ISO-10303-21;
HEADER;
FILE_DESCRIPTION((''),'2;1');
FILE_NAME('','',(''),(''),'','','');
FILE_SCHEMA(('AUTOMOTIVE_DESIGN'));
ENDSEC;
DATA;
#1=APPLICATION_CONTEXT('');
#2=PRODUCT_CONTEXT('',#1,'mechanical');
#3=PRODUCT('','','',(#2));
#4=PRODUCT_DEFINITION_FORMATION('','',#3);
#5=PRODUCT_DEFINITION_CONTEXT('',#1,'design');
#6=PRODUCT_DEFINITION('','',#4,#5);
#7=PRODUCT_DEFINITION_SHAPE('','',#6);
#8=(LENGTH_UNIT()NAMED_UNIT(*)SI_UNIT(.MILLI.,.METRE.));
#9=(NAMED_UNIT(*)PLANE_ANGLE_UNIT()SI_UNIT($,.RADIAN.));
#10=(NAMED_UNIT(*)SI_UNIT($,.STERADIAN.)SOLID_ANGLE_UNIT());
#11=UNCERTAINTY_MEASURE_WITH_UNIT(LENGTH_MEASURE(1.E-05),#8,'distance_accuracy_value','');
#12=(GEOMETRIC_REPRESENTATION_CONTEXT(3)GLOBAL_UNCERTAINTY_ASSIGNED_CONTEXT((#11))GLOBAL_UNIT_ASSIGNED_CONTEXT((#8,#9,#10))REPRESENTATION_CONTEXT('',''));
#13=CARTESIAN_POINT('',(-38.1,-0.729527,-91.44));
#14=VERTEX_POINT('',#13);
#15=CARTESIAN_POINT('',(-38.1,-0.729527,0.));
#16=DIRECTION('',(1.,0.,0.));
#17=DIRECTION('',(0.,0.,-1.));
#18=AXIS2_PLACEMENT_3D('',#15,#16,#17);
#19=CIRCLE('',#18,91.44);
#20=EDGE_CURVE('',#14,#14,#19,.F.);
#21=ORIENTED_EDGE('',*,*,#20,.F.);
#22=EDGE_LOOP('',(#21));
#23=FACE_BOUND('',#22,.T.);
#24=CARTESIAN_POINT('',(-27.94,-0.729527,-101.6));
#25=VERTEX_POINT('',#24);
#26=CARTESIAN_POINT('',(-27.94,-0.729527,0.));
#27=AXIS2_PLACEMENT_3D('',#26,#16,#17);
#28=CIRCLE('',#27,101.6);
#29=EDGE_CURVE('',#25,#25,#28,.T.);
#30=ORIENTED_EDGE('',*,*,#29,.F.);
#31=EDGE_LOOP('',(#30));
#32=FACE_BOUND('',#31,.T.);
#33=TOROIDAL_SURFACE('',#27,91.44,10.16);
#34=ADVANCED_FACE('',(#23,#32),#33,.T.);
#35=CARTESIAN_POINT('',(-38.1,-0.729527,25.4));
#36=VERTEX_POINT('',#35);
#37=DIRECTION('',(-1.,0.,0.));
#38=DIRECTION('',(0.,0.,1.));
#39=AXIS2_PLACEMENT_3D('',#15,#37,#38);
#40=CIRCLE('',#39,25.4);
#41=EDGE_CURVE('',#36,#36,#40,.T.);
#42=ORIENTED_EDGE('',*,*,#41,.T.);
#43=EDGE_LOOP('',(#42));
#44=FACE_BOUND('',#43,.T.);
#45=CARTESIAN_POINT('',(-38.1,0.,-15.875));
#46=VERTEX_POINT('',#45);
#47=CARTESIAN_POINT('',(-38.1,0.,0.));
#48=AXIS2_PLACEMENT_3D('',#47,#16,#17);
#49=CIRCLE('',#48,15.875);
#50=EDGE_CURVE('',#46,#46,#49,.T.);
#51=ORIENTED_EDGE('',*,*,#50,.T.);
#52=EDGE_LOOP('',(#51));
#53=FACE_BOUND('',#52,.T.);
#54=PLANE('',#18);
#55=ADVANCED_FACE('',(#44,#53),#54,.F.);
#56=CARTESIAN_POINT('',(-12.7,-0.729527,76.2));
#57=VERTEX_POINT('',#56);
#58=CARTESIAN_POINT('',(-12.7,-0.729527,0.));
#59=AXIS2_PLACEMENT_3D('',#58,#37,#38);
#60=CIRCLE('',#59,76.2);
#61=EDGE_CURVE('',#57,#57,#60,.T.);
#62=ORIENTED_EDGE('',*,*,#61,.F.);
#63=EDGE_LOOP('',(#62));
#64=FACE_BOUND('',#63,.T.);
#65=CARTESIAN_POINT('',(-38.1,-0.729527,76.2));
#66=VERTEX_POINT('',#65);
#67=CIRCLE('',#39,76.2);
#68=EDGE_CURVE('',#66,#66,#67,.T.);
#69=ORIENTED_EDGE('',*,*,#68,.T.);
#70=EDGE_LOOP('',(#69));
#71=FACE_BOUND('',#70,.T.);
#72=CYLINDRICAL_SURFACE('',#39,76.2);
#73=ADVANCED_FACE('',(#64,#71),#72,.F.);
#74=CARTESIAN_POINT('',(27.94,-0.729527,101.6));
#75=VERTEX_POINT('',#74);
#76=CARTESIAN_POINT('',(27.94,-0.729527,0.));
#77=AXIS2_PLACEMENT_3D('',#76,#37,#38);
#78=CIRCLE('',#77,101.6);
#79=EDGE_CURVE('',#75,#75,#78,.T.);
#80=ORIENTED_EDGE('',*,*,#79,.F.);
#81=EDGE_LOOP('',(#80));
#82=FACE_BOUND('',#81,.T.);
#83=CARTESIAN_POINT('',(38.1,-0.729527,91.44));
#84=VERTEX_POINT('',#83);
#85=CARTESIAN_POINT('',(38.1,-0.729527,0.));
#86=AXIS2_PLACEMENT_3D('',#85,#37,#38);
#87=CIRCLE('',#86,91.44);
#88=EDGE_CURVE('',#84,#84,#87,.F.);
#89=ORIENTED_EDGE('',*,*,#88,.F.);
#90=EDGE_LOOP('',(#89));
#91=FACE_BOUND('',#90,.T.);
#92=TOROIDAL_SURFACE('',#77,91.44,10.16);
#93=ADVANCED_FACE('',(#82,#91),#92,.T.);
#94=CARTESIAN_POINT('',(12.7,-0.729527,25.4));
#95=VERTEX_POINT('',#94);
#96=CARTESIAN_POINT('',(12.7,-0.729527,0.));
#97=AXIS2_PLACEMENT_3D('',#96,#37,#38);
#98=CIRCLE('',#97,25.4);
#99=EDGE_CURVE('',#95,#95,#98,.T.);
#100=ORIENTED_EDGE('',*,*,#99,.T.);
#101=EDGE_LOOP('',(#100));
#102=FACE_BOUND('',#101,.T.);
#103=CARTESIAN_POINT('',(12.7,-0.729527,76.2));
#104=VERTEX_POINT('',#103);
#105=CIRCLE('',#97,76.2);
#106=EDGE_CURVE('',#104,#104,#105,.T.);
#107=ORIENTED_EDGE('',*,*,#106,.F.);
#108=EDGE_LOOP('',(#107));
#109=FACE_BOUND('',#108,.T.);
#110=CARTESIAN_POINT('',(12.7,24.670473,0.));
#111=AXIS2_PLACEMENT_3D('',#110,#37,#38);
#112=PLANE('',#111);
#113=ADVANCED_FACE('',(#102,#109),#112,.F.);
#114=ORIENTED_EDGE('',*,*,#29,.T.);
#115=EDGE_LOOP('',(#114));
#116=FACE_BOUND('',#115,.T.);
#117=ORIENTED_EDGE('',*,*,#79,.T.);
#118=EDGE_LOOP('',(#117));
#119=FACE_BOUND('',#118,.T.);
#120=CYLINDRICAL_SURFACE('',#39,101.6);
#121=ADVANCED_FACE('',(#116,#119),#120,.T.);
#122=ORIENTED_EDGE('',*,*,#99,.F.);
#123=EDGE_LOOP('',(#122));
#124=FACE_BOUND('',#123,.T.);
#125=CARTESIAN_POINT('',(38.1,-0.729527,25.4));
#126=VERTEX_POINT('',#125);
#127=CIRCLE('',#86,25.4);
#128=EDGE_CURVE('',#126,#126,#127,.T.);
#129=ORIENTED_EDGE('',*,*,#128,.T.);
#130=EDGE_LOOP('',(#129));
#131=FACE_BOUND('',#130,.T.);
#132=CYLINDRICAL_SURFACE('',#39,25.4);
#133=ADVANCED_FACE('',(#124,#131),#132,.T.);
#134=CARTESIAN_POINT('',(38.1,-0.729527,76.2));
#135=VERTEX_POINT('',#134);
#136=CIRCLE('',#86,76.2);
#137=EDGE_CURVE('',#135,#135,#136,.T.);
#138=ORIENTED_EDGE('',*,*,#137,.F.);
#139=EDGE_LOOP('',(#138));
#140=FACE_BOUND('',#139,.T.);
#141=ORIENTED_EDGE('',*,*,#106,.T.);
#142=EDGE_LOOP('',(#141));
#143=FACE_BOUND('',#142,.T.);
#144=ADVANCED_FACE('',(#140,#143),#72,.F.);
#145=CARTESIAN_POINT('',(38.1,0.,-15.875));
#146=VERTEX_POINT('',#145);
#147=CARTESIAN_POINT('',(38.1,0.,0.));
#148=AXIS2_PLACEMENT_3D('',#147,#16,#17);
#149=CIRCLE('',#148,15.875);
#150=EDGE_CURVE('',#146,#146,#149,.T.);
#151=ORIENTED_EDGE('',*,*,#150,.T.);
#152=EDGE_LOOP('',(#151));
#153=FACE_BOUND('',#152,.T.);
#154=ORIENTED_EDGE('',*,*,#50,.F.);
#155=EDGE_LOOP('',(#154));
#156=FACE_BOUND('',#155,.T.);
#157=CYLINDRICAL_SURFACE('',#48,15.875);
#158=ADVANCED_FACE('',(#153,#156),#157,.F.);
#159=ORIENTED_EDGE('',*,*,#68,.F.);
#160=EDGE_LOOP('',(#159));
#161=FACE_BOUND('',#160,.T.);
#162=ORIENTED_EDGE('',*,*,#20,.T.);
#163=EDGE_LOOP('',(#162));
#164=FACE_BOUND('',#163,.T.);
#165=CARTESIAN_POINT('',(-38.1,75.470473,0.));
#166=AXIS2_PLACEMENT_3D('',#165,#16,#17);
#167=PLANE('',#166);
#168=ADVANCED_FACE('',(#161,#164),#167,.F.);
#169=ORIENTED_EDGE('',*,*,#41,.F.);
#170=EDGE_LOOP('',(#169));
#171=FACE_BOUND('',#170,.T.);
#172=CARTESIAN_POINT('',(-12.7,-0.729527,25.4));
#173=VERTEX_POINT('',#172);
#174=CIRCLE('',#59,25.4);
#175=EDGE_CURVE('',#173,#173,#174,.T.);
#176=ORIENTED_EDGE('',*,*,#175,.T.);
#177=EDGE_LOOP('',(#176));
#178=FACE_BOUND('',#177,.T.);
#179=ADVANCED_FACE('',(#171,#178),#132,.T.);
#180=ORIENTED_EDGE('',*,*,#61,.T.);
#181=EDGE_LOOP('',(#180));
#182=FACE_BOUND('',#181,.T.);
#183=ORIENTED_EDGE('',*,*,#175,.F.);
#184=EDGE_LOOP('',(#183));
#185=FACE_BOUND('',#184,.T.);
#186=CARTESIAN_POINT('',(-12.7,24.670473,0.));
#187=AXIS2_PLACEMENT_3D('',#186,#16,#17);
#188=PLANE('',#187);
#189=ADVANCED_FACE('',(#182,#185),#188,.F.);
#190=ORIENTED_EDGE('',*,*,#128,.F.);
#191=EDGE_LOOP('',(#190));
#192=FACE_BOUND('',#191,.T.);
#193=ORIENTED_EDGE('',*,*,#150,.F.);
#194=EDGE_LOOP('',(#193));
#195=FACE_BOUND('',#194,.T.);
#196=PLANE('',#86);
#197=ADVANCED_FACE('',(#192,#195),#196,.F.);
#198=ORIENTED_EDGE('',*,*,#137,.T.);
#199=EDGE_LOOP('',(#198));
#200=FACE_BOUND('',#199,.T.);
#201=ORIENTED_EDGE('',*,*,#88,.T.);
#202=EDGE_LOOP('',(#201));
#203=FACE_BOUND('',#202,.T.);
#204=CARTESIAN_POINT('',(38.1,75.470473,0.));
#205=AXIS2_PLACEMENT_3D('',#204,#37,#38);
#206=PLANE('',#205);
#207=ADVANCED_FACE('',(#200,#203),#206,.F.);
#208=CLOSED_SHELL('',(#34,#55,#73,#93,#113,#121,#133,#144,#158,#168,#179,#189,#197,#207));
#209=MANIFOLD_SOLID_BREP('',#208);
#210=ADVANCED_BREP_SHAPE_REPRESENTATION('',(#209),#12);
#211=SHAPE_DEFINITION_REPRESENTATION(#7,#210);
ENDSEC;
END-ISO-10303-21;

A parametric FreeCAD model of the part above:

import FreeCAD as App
import Part
import Sketcher

V = App.Vector
Q = App.Units.Quantity


def edges_at(feature, points):
    """Names of the edges that pass closest to the given points."""
    edges = feature.Shape.Edges
    near = lambda p: min(range(len(edges)), key=lambda i: edges[i].distToShape(Part.Vertex(*p))[0])
    return sorted({f"Edge{near(p) + 1}" for p in points})


def add_polygon(sketch, points):
    """Adds a closed chain of lines whose ends are joined by coincident constraints."""
    first, n = sketch.GeometryCount, len(points)
    for a, b in zip(points, points[1:] + points[:1]):
        sketch.addGeometry(Part.LineSegment(App.Vector(*a, 0), App.Vector(*b, 0)), False)
    for i in range(n):
        sketch.addConstraint(Sketcher.Constraint("Coincident", first + i, 2, first + (i + 1) % n, 1))

doc = App.newDocument("Part")
body = doc.addObject("PartDesign::Body", "Body")

sketch1 = body.newObject("Sketcher::SketchObject", "Sketch")
sketch1.AttachmentSupport = (doc.getObject("XY_Plane"), [""])
sketch1.MapMode = "FlatFace"
add_polygon(sketch1, [(-38, 25), (-38, -1), (38, -1), (38, 25), (13, 25), (13, 75), (38, 75), (38, 101), (-38, 101), (-38, 75), (-13, 75), (-13, 25)])
sketch1.addGeometry(Part.LineSegment(V(-38, -1, 0), V(38, -1, 0)), True)
sketch1.addConstraint(Sketcher.Constraint("Vertical", 0))
sketch1.addConstraint(Sketcher.Constraint("Horizontal", 1))
sketch1.addConstraint(Sketcher.Constraint("Vertical", 2))
sketch1.addConstraint(Sketcher.Constraint("Horizontal", 3))
sketch1.addConstraint(Sketcher.Constraint("Vertical", 4))
sketch1.addConstraint(Sketcher.Constraint("Horizontal", 5))
sketch1.addConstraint(Sketcher.Constraint("Vertical", 6))
sketch1.addConstraint(Sketcher.Constraint("Horizontal", 7))
sketch1.addConstraint(Sketcher.Constraint("Vertical", 8))
sketch1.addConstraint(Sketcher.Constraint("Horizontal", 9))
sketch1.addConstraint(Sketcher.Constraint("Vertical", 10))
sketch1.addConstraint(Sketcher.Constraint("Horizontal", 11))
sketch1.addConstraint(Sketcher.Constraint("Horizontal", 12))
sketch1.addConstraint(Sketcher.Constraint("Coincident", 12, 1, 0, 2))
sketch1.addConstraint(Sketcher.Constraint("Symmetric", 5, 2, 8, 2, -2))
sketch1.addConstraint(Sketcher.Constraint("Symmetric", 3, 2, 10, 2, -2))
sketch1.addConstraint(Sketcher.Constraint("Vertical", 2, 2, 5, 2))
sketch1.addConstraint(Sketcher.Constraint("Vertical", 0, 2, 7, 2))
sketch1.addConstraint(Sketcher.Constraint("Vertical", 6, 2, 12, 2))
sketch1.addConstraint(Sketcher.Constraint("Equal", 11, 0))
sketch1.addConstraint(Sketcher.Constraint("Equal", 2, 6))
sketch1.addConstraint(Sketcher.Constraint("DistanceX", 1, 1, 1, 2, Q("3 in")))
sketch1.addConstraint(Sketcher.Constraint("DistanceX", 3, 2, 3, 1, Q("1 in")))
sketch1.addConstraint(Sketcher.Constraint("DistanceY", 4, 1, 4, 2, Q("2 in")))
sketch1.addConstraint(Sketcher.Constraint("DistanceY", 0, 2, -1, 1, 0.729527))
revolution = body.newObject("PartDesign::Revolution", "Revolution")
revolution.Profile = sketch1
revolution.ReferenceAxis = (sketch1, ["Axis0"])
revolution.Angle = 360

sketch2 = body.newObject("Sketcher::SketchObject", "Sketch001")
sketch2.AttachmentSupport = (doc.getObject("YZ_Plane"), [""])
sketch2.MapMode = "FlatFace"
sketch2.AttachmentOffset = App.Placement(V(0, 0, 1.5 * 25.4), App.Rotation())
sketch2.addGeometry(Part.Circle(V(0, 0, 0), V(0, 0, 1), 16), False)
sketch2.addConstraint(Sketcher.Constraint("Coincident", 0, 3, -1, 1))
sketch2.addConstraint(Sketcher.Constraint("Diameter", 0, Q("1.25 in")))
pocket1 = body.newObject("PartDesign::Pocket", "Pocket")
pocket1.Profile = sketch2
pocket1.Type = "ThroughAll"
doc.recompute()

fillet = body.newObject("PartDesign::Fillet", "Fillet")
fillet.Base = (pocket1, edges_at(pocket1, [(38.1, -102.33, 0)]))
fillet.Radius = Q("0.4 in")
doc.recompute()

fillet2 = body.newObject("PartDesign::Fillet", "Fillet001")
fillet2.Base = (fillet, edges_at(fillet, [(-38.1, -102.33, 0)]))
fillet2.Radius = Q("0.4 in")

doc.recompute()
